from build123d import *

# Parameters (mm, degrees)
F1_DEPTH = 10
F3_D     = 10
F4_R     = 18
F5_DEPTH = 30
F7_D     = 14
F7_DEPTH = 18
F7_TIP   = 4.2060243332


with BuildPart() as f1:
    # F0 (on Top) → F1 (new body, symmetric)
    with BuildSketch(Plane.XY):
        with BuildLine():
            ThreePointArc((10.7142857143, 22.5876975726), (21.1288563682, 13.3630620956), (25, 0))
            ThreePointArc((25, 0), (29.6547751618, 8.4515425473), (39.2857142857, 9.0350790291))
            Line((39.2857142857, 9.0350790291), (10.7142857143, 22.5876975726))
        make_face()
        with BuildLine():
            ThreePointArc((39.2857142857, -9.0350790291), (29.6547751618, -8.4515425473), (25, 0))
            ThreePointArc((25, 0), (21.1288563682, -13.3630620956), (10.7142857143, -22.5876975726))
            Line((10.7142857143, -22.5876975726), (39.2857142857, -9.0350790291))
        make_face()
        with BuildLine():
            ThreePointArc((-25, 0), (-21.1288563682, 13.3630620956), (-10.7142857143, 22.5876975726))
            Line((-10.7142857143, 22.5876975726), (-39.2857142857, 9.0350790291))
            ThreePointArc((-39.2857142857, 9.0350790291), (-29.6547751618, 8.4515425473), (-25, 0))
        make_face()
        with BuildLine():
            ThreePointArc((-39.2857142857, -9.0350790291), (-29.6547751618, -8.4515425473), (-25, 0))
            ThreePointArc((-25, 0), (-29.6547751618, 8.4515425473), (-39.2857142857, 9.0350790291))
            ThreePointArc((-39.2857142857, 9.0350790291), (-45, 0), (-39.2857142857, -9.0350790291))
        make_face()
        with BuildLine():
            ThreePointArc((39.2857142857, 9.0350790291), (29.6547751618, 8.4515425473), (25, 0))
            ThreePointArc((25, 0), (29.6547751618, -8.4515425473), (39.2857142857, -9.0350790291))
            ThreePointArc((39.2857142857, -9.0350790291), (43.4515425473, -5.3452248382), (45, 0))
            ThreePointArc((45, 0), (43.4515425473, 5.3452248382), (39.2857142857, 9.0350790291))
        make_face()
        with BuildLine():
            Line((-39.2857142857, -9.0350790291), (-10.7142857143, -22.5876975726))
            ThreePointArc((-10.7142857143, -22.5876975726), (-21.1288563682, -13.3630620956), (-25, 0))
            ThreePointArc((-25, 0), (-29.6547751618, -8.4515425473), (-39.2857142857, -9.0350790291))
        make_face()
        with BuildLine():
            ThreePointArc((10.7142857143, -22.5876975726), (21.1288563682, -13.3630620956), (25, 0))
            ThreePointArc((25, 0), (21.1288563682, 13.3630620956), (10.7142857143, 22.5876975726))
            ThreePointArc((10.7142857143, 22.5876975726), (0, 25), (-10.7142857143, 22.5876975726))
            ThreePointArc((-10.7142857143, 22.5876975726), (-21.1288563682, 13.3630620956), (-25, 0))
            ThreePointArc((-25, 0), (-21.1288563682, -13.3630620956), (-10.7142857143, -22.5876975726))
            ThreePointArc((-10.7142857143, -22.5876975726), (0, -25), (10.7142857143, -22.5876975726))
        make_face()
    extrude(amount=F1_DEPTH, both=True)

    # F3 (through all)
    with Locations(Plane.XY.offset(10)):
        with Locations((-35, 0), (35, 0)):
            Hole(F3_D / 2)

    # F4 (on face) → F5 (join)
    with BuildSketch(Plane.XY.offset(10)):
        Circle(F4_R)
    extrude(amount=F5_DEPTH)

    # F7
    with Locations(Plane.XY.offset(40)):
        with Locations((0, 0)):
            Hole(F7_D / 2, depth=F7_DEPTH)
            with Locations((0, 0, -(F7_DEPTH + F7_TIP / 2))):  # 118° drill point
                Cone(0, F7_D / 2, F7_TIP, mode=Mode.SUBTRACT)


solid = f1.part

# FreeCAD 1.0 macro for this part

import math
import FreeCAD as App
import Part
import Sketcher

V = App.Vector

doc = App.newDocument("Part")
params = doc.addObject("Spreadsheet::Sheet", "Params")
for row, (alias, value) in enumerate([
    ("sketch1_radius", "10 mm"),
    ("sketch1_radius2", "25 mm"),
    ("pad1_length", "20 mm"),
    ("sketch2_diameter", "10 mm"),
    ("hole_diameter", "10 mm"),
    ("sketch3_diameter", "36 mm"),
    ("pad2_length", "30 mm"),
    ("sketch4_diameter", "14 mm"),
    ("hole2_diameter", "14 mm"),
    ("hole2_depth", "18 mm"),
], start=1):
    params.set(f"A{row}", alias)
    params.set(f"B{row}", "=" + value)
    params.setAlias(f"B{row}", alias)

body = doc.addObject("PartDesign::Body", "Body")

# Sketch on XY plane
sketch1 = body.newObject("Sketcher::SketchObject", "Sketch")
sketch1.AttachmentSupport = (doc.getObject("XY_Plane"), [""])
sketch1.MapMode = "FlatFace"
sketch1.addGeometry([
    Part.LineSegment(V(11, -23, 0), V(39, -9, 0)),  # 0
    Part.ArcOfCircle(Part.Circle(V(35, 0, 0), V(0, 0, 1), 10), math.radians(-65), math.radians(0)),  # 1
    Part.ArcOfCircle(Part.Circle(V(35, 0, 0), V(0, 0, 1), 10), math.radians(0), math.radians(65)),  # 2
    Part.LineSegment(V(39, 9, 0), V(11, 23, 0)),  # 3
    Part.ArcOfCircle(Part.Circle(V(0, 0, 0), V(0, 0, 1), 25), math.radians(65), math.radians(115)),  # 4
    Part.LineSegment(V(-11, 23, 0), V(-39, 9, 0)),  # 5
    Part.ArcOfCircle(Part.Circle(V(-35, 0, 0), V(0, 0, 1), 10), math.radians(115), math.radians(245)),  # 6
    Part.LineSegment(V(-39, -9, 0), V(-11, -23, 0)),  # 7
    Part.ArcOfCircle(Part.Circle(V(0, 0, 0), V(0, 0, 1), 25), math.radians(-115), math.radians(-65)),  # 8
], False)
sketch1.addConstraint([
    Sketcher.Constraint("Tangent", 0, 2, 1, 1),
    Sketcher.Constraint("Tangent", 1, 2, 2, 1),
    Sketcher.Constraint("Tangent", 2, 2, 3, 1),
    Sketcher.Constraint("Tangent", 3, 2, 4, 1),
    Sketcher.Constraint("Tangent", 4, 2, 5, 1),
    Sketcher.Constraint("Tangent", 5, 2, 6, 1),
    Sketcher.Constraint("Tangent", 6, 2, 7, 1),
    Sketcher.Constraint("Tangent", 7, 2, 8, 1),
    Sketcher.Constraint("Tangent", 8, 2, 0, 1),
    Sketcher.Constraint("Coincident", 4, 3, -1, 1),
    Sketcher.Constraint("Coincident", 8, 3, -1, 1),
    Sketcher.Constraint("Equal", 1, 2),
    Sketcher.Constraint("Equal", 2, 6),
    Sketcher.Constraint("Equal", 4, 8),
    Sketcher.Constraint("Symmetric", 1, 3, 6, 3, -1, 1),
    Sketcher.Constraint("PointOnObject", 1, 3, -1),
    Sketcher.Constraint("PointOnObject", 1, 2, -1),
    Sketcher.Constraint("Radius", 1, 10.0),
    Sketcher.Constraint("Radius", 4, 25.0),
    Sketcher.Constraint("DistanceX", -1, 1, 1, 3, 35.0),
])
sketch1.setExpression("Constraints[17]", "Params.sketch1_radius")
sketch1.setExpression("Constraints[18]", "Params.sketch1_radius2")
pad1 = body.newObject("PartDesign::Pad", "Pad")
pad1.Profile = sketch1
pad1.setExpression("Length", "Params.pad1_length")
pad1.Midplane = True

# Sketch on XY plane
sketch2 = body.newObject("Sketcher::SketchObject", "Sketch001")
sketch2.AttachmentSupport = (doc.getObject("XY_Plane"), [""])
sketch2.MapMode = "FlatFace"
sketch2.AttachmentOffset = App.Placement(V(0, 0, 10), App.Rotation())
sketch2.addGeometry([
    Part.Circle(V(-35, 0, 0), V(0, 0, 1), 5),
    Part.Circle(V(35, 0, 0), V(0, 0, 1), 5),
], False)
sketch2.addConstraint([
    Sketcher.Constraint("Equal", 0, 1),
    Sketcher.Constraint("Symmetric", 0, 3, 1, 3, -1, 1),
    Sketcher.Constraint("PointOnObject", 0, 3, -1),
    Sketcher.Constraint("Diameter", 0, 10.0),
    Sketcher.Constraint("DistanceX", 0, 3, -1, 1, 35.0),
])
sketch2.setExpression("Constraints[3]", "Params.sketch2_diameter")
doc.recompute()
hole = body.newObject("PartDesign::Hole", "Hole")
hole.Profile = sketch2
hole.ThreadType = "None"
hole.setExpression("Diameter", "Params.hole_diameter")
hole.DepthType = "ThroughAll"

# Sketch on XY plane
sketch3 = body.newObject("Sketcher::SketchObject", "Sketch002")
sketch3.AttachmentSupport = (doc.getObject("XY_Plane"), [""])
sketch3.MapMode = "FlatFace"
sketch3.AttachmentOffset = App.Placement(V(0, 0, 10), App.Rotation())
sketch3.addGeometry(Part.Circle(V(0, 0, 0), V(0, 0, 1), 18), False)
sketch3.addConstraint([
    Sketcher.Constraint("Coincident", 0, 3, -1, 1),
    Sketcher.Constraint("Diameter", 0, 36.0),
])
sketch3.setExpression("Constraints[1]", "Params.sketch3_diameter")
pad2 = body.newObject("PartDesign::Pad", "Pad001")
pad2.Profile = sketch3
pad2.setExpression("Length", "Params.pad2_length")

# Sketch on XY plane
sketch4 = body.newObject("Sketcher::SketchObject", "Sketch003")
sketch4.AttachmentSupport = (doc.getObject("XY_Plane"), [""])
sketch4.MapMode = "FlatFace"
sketch4.AttachmentOffset = App.Placement(V(0, 0, 40), App.Rotation())
sketch4.addGeometry(Part.Circle(V(0, 0, 0), V(0, 0, 1), 7), False)
sketch4.addConstraint([
    Sketcher.Constraint("Coincident", 0, 3, -1, 1),
    Sketcher.Constraint("Diameter", 0, 14.0),
])
sketch4.setExpression("Constraints[1]", "Params.sketch4_diameter")
doc.recompute()
hole2 = body.newObject("PartDesign::Hole", "Hole001")
hole2.Profile = sketch4
hole2.ThreadType = "None"
hole2.setExpression("Diameter", "Params.hole2_diameter")
hole2.DepthType = "Dimension"
hole2.setExpression("Depth", "Params.hole2_depth")
hole2.DrillPoint = "Angled"
hole2.DrillPointAngle = 118

doc.recompute()
